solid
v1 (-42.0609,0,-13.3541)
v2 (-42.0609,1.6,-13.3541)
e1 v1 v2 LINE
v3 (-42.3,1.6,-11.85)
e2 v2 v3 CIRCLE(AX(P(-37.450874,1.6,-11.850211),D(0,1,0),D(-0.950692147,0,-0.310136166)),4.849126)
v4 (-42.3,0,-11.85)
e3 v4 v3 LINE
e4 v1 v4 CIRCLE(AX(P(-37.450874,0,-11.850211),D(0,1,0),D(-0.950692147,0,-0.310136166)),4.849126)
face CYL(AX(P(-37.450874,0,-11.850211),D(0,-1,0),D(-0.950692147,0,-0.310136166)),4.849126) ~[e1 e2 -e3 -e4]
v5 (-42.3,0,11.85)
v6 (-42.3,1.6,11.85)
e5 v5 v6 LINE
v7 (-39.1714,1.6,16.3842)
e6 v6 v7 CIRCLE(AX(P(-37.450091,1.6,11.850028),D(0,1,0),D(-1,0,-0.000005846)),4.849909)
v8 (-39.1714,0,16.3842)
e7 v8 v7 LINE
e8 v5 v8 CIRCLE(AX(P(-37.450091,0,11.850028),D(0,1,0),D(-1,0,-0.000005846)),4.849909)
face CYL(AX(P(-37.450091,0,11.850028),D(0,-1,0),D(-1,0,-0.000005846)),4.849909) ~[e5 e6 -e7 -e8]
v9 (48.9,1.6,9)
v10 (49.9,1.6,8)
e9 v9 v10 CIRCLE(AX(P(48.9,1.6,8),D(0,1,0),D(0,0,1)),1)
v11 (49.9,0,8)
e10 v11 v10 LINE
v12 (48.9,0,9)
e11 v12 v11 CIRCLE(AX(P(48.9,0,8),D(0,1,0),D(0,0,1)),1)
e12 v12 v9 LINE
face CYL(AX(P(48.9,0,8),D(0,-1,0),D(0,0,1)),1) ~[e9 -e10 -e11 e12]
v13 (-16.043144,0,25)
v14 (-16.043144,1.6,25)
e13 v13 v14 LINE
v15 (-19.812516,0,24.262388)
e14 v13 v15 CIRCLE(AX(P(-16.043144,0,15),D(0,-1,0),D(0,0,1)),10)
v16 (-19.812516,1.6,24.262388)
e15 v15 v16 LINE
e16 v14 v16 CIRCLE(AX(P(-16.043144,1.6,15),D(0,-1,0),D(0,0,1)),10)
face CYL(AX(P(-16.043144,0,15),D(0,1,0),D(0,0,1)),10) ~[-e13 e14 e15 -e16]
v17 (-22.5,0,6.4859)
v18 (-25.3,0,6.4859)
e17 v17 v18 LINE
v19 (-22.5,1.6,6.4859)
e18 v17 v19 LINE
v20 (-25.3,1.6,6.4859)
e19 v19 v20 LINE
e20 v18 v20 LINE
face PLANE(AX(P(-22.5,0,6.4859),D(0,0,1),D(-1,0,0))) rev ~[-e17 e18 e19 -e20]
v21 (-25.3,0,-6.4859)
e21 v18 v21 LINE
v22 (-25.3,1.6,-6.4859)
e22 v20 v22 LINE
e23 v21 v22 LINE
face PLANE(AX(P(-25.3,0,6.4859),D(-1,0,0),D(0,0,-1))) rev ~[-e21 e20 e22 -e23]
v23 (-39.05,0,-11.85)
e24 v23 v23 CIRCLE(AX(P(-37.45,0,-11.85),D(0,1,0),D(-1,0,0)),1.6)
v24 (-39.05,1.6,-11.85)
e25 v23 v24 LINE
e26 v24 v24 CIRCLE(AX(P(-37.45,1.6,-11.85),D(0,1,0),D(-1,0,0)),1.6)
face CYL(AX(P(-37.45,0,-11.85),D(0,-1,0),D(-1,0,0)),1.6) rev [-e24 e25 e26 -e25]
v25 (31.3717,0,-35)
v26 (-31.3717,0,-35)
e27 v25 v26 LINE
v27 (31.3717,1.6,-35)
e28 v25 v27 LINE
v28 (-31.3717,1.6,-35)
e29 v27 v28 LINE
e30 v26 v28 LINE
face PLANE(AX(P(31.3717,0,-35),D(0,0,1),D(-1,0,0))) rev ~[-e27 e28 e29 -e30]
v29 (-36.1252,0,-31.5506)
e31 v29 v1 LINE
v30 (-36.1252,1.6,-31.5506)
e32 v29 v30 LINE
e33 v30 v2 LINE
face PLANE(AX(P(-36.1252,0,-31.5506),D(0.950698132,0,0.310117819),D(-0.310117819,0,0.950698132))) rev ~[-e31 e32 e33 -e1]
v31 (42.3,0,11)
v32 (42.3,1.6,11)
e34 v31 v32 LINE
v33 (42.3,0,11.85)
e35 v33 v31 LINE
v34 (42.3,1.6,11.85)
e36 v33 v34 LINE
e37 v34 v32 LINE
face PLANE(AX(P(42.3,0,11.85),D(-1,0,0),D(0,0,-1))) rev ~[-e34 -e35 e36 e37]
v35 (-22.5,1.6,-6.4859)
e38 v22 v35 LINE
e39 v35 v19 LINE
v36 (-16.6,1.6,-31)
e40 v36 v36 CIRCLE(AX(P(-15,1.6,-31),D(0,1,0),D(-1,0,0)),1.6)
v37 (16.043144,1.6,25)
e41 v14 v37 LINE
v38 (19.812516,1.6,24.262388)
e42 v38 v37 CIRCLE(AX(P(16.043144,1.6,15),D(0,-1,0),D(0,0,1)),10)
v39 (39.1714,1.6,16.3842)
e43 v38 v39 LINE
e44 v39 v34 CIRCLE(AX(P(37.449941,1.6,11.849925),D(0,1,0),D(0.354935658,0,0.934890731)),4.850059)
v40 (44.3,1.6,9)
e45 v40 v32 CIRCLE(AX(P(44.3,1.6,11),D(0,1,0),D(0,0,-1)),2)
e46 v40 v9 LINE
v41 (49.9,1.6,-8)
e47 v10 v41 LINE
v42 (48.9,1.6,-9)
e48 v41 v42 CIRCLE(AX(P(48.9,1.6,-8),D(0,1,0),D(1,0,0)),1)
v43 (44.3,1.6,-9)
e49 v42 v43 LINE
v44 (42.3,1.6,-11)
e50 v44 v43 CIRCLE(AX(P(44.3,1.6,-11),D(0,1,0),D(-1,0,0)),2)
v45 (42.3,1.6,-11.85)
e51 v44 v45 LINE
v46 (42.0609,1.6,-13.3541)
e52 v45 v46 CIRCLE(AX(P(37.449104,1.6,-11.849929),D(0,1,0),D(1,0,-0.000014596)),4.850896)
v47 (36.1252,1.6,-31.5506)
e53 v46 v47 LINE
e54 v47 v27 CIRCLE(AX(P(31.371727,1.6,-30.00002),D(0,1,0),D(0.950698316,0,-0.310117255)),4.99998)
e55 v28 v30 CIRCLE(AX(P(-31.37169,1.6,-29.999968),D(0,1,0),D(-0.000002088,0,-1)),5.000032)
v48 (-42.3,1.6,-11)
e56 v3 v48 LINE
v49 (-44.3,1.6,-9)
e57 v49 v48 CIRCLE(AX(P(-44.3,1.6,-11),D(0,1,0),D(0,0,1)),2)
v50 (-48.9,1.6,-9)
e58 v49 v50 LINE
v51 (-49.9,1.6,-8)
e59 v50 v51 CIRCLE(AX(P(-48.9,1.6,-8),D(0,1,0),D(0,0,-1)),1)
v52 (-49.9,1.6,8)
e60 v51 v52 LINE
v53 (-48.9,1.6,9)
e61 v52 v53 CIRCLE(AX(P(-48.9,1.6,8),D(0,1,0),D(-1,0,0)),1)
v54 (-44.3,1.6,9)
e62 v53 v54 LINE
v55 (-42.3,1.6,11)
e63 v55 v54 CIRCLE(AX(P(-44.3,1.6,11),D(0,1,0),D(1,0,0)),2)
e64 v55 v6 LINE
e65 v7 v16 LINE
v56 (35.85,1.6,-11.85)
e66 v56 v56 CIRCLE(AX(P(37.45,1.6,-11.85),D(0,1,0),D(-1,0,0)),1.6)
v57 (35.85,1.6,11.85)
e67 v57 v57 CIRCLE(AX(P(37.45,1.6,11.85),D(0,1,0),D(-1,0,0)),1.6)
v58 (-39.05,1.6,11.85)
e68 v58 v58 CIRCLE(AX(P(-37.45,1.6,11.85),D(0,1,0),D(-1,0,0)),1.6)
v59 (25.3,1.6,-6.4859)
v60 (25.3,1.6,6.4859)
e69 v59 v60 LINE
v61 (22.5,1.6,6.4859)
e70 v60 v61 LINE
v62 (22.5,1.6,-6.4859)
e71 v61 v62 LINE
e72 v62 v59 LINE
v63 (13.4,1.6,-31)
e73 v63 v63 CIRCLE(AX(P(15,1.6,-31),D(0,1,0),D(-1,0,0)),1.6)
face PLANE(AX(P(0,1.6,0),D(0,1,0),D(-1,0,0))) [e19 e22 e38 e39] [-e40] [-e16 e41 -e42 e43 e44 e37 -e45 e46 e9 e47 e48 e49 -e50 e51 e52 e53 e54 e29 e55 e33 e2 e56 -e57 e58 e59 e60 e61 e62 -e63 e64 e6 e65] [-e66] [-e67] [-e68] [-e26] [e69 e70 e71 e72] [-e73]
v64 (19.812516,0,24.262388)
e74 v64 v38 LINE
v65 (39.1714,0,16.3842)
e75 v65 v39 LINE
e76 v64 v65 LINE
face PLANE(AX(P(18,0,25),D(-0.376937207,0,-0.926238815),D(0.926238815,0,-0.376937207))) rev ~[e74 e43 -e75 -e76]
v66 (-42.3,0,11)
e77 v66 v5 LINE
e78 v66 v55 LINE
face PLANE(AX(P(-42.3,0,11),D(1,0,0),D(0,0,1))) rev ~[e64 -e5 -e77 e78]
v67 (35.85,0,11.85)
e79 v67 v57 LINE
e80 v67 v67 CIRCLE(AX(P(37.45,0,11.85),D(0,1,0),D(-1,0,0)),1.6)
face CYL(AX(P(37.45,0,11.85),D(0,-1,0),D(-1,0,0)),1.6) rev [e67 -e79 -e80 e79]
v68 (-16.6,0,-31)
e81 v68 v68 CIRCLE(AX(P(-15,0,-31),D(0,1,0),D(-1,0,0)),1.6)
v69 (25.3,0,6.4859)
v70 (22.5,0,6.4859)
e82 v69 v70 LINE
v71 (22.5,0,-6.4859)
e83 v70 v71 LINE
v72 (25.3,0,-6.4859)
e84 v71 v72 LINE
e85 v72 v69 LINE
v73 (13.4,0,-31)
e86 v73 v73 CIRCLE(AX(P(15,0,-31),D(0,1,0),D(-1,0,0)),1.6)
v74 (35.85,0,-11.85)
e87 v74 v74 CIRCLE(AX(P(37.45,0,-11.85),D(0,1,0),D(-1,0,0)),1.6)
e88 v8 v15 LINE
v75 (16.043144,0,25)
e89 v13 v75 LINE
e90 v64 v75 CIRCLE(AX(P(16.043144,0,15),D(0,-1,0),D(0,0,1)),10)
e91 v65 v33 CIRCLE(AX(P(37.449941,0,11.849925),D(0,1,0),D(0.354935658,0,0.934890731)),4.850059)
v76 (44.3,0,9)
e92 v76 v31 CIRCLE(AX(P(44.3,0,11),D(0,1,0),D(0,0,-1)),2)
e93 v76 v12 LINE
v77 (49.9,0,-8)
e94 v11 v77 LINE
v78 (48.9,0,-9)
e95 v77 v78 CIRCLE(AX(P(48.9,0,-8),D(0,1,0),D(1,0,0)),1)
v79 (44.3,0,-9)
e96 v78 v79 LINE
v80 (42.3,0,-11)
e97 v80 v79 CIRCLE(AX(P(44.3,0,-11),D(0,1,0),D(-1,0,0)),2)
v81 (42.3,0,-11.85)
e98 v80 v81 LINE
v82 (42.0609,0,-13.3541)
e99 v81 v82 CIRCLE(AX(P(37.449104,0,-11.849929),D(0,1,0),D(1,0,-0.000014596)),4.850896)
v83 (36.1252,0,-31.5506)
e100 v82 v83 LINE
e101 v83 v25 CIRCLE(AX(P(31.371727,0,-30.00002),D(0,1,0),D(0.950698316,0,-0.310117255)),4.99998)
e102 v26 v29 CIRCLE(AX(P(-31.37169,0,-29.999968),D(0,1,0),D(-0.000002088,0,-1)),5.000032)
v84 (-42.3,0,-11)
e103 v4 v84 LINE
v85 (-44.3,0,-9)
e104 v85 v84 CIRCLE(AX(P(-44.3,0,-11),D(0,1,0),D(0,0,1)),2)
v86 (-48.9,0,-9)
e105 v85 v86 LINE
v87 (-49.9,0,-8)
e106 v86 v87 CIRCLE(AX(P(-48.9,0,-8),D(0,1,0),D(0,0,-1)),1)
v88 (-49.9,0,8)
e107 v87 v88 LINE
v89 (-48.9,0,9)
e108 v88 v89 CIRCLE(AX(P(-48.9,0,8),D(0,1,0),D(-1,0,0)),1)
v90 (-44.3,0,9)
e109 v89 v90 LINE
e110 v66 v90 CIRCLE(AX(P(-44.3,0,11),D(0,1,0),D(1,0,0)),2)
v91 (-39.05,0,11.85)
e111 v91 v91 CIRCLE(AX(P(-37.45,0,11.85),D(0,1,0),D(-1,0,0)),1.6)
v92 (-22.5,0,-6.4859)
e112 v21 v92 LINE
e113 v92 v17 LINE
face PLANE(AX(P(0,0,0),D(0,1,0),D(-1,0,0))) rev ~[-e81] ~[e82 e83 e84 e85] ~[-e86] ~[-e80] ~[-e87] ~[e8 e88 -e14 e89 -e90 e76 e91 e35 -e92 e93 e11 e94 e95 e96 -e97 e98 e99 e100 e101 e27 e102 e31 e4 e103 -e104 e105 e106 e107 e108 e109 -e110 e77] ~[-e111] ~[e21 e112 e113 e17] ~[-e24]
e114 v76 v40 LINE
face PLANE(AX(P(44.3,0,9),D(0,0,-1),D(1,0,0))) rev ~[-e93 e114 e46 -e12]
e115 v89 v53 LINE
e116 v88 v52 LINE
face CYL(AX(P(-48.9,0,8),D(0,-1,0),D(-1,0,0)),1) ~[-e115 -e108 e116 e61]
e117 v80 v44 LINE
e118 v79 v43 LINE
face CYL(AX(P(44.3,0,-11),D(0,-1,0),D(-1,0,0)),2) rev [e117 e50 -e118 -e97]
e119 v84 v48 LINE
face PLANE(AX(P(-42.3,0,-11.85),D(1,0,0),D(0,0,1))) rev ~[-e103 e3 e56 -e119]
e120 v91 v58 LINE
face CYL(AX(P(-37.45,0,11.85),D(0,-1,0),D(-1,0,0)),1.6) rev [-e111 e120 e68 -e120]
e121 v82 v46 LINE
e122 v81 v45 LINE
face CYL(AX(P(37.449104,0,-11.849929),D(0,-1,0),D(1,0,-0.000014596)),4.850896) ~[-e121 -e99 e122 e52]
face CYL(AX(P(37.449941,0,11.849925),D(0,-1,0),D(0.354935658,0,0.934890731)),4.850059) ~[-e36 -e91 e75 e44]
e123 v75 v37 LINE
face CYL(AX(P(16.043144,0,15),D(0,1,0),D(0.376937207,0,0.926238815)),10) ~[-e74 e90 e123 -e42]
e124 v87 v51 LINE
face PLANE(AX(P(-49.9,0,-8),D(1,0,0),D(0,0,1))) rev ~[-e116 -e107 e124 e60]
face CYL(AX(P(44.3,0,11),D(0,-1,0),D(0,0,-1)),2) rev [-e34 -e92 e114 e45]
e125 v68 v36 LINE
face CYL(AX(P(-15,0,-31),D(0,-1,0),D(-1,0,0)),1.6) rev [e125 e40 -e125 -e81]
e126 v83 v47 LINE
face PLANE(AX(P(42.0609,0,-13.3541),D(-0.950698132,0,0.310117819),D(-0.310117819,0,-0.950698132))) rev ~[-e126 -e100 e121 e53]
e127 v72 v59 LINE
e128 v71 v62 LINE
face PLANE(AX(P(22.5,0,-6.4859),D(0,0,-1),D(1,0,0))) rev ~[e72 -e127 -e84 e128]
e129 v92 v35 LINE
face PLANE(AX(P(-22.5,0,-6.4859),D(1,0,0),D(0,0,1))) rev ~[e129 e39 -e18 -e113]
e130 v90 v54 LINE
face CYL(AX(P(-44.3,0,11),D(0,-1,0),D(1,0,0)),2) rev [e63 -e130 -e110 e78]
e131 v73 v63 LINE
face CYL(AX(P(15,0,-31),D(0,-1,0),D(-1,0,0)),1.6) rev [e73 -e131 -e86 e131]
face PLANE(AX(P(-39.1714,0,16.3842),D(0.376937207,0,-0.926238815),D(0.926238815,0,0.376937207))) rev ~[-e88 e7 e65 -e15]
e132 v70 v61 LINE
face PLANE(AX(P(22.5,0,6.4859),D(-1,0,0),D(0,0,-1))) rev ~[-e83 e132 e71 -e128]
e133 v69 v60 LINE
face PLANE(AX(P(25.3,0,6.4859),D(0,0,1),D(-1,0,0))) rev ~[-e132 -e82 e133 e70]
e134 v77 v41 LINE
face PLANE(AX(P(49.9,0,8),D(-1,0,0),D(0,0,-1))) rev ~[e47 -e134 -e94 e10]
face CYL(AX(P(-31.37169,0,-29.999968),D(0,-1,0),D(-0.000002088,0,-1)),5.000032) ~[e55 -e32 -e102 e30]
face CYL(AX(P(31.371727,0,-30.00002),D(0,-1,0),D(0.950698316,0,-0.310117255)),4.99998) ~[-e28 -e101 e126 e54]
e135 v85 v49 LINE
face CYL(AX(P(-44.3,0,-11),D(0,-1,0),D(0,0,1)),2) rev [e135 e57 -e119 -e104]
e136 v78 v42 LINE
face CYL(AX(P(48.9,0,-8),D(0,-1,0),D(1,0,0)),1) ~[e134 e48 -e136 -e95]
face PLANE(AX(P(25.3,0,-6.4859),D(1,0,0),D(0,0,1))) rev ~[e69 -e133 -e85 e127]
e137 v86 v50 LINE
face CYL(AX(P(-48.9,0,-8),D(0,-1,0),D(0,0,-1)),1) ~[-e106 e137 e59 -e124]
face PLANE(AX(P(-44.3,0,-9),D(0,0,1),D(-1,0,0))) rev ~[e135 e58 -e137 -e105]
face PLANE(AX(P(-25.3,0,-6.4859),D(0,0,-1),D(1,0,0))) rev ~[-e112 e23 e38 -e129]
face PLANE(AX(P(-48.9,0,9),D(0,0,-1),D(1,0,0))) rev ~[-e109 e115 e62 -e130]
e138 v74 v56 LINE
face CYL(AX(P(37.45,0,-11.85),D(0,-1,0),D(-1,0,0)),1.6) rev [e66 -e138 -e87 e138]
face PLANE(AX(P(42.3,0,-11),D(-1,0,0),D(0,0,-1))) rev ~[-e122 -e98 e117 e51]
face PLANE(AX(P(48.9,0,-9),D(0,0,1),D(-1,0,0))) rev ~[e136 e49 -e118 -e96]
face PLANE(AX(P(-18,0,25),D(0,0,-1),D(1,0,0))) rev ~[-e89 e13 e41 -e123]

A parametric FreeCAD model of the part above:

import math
import FreeCAD as App
import Part
import Sketcher
Q = App.Units.Quantity


def edges_at(feature, points):
    """Names of the edges that pass closest to the given points."""
    edges = feature.Shape.Edges
    near = lambda p: min(range(len(edges)), key=lambda i: edges[i].distToShape(Part.Vertex(*p))[0])
    return sorted({f"Edge{near(p) + 1}" for p in points})


def add_polygon(sketch, points):
    """Adds a closed chain of lines whose ends are joined by coincident constraints."""
    first, n = sketch.GeometryCount, len(points)
    for a, b in zip(points, points[1:] + points[:1]):
        sketch.addGeometry(Part.LineSegment(App.Vector(*a, 0), App.Vector(*b, 0)), False)
    for i in range(n):
        sketch.addConstraint(Sketcher.Constraint("Coincident", first + i, 2, first + (i + 1) % n, 1))

doc = App.newDocument("Part")
body = doc.addObject("PartDesign::Body", "Body")

sketch1 = doc.addObject("Sketcher::SketchObject", "Sketch")
body.addObject(sketch1)
sketch1.AttachmentSupport = (doc.XZ_Plane, [""])
sketch1.MapMode = "FlatFace"
sketch1.addGeometry(Part.LineSegment(App.Vector(-49.9, -8, 0), App.Vector(-49.9, 8, 0)), False)
sketch1.addGeometry(Part.ArcOfCircle(Part.Circle(App.Vector(-48.9, 8, 0), App.Vector(0, 0, 1), 1), math.radians(90), math.radians(180)), False)
sketch1.addGeometry(Part.LineSegment(App.Vector(-48.9, 9, 0), App.Vector(-44.3, 9, 0)), False)
sketch1.addGeometry(Part.ArcOfCircle(Part.Circle(App.Vector(-44.3, 11, 0), App.Vector(0, 0, 1), 2), math.radians(-90), math.radians(0)), False)
sketch1.addGeometry(Part.LineSegment(App.Vector(-42.3, 11, 0), App.Vector(-42.3, 11.8, 0)), False)
sketch1.addGeometry(Part.ArcOfCircle(Part.Circle(App.Vector(-37.5, 11.8, 0), App.Vector(0, 0, 1), 4.8), math.radians(111), math.radians(180)), False)
sketch1.addGeometry(Part.LineSegment(App.Vector(-39.2, 16.4, 0), App.Vector(-18, 25, 0)), False)
sketch1.addGeometry(Part.LineSegment(App.Vector(-18, 25, 0), App.Vector(18, 25, 0)), False)
sketch1.addGeometry(Part.LineSegment(App.Vector(18, 25, 0), App.Vector(39.2, 16.4, 0)), False)
sketch1.addGeometry(Part.ArcOfCircle(Part.Circle(App.Vector(37.5, 11.8, 0), App.Vector(0, 0, 1), 4.8), math.radians(0), math.radians(69)), False)
sketch1.addGeometry(Part.LineSegment(App.Vector(42.3, 11.8, 0), App.Vector(42.3, 11, 0)), False)
sketch1.addGeometry(Part.ArcOfCircle(Part.Circle(App.Vector(44.3, 11, 0), App.Vector(0, 0, 1), 2), math.radians(180), math.radians(270)), False)
sketch1.addGeometry(Part.LineSegment(App.Vector(44.3, 9, 0), App.Vector(48.9, 9, 0)), False)
sketch1.addGeometry(Part.ArcOfCircle(Part.Circle(App.Vector(48.9, 8, 0), App.Vector(0, 0, 1), 1), math.radians(0), math.radians(90)), False)
sketch1.addGeometry(Part.LineSegment(App.Vector(49.9, 8, 0), App.Vector(49.9, -8, 0)), False)
sketch1.addGeometry(Part.ArcOfCircle(Part.Circle(App.Vector(48.9, -8, 0), App.Vector(0, 0, 1), 1), math.radians(-90), math.radians(0)), False)
sketch1.addGeometry(Part.LineSegment(App.Vector(48.9, -9, 0), App.Vector(44.3, -9, 0)), False)
sketch1.addGeometry(Part.ArcOfCircle(Part.Circle(App.Vector(44.3, -11, 0), App.Vector(0, 0, 1), 2), math.radians(90), math.radians(180)), False)
sketch1.addGeometry(Part.LineSegment(App.Vector(42.3, -11, 0), App.Vector(42.3, -11.8, 0)), False)
sketch1.addGeometry(Part.ArcOfCircle(Part.Circle(App.Vector(37.5, -11.8, 0), App.Vector(0, 0, 1), 4.8), math.radians(-18.07), math.radians(0)), False)
sketch1.addGeometry(Part.LineSegment(App.Vector(42.1, -13.4, 0), App.Vector(36.1, -31.6, 0)), False)
sketch1.addGeometry(Part.ArcOfCircle(Part.Circle(App.Vector(31.4, -30, 0), App.Vector(0, 0, 1), 5), math.radians(-90), math.radians(-18)), False)
sketch1.addGeometry(Part.LineSegment(App.Vector(31.4, -35, 0), App.Vector(-31.4, -35, 0)), False)
sketch1.addGeometry(Part.ArcOfCircle(Part.Circle(App.Vector(-31.4, -30, 0), App.Vector(0, 0, 1), 5), math.radians(-162), math.radians(-90)), False)
sketch1.addGeometry(Part.LineSegment(App.Vector(-36.1, -31.6, 0), App.Vector(-42.1, -13.4, 0)), False)
sketch1.addGeometry(Part.ArcOfCircle(Part.Circle(App.Vector(-37.5, -11.8, 0), App.Vector(0, 0, 1), 4.9), math.radians(180), math.radians(198.07)), False)
sketch1.addGeometry(Part.LineSegment(App.Vector(-42.3, -11.8, 0), App.Vector(-42.3, -11, 0)), False)
sketch1.addGeometry(Part.ArcOfCircle(Part.Circle(App.Vector(-44.3, -11, 0), App.Vector(0, 0, 1), 2), math.radians(0), math.radians(90)), False)
sketch1.addGeometry(Part.LineSegment(App.Vector(-44.3, -9, 0), App.Vector(-48.9, -9, 0)), False)
sketch1.addGeometry(Part.ArcOfCircle(Part.Circle(App.Vector(-48.9, -8, 0), App.Vector(0, 0, 1), 1), math.radians(180), math.radians(270)), False)
sketch1.addGeometry(Part.Circle(App.Vector(15, -31, 0), App.Vector(0, 0, 1), 1.6), False)
sketch1.addGeometry(Part.Circle(App.Vector(37.5, -11.8, 0), App.Vector(0, 0, 1), 1.6), False)
sketch1.addGeometry(Part.Circle(App.Vector(-15, -31, 0), App.Vector(0, 0, 1), 1.6), False)
sketch1.addGeometry(Part.Circle(App.Vector(-37.5, -11.8, 0), App.Vector(0, 0, 1), 1.6), False)
add_polygon(sketch1, [(22.5, -6.5), (25.3, -6.5), (25.3, 6.5), (22.5, 6.5)])
sketch1.addGeometry(Part.Circle(App.Vector(37.5, 11.8, 0), App.Vector(0, 0, 1), 1.6), False)
add_polygon(sketch1, [(-25.3, 6.5), (-25.3, -6.5), (-22.5, -6.5), (-22.5, 6.5)])
sketch1.addGeometry(Part.Circle(App.Vector(-37.5, 11.8, 0), App.Vector(0, 0, 1), 1.6), False)
sketch1.addConstraint([
    Sketcher.Constraint("Tangent", 0, 2, 1, 2),
    Sketcher.Constraint("Tangent", 1, 1, 2, 1),
    Sketcher.Constraint("Tangent", 2, 2, 3, 1),
    Sketcher.Constraint("Tangent", 3, 2, 4, 1),
    Sketcher.Constraint("Tangent", 4, 2, 5, 2),
    Sketcher.Constraint("Coincident", 5, 1, 6, 1),
    Sketcher.Constraint("Coincident", 6, 2, 7, 1),
    Sketcher.Constraint("Coincident", 7, 2, 8, 1),
    Sketcher.Constraint("Coincident", 8, 2, 9, 2),
    Sketcher.Constraint("Tangent", 9, 1, 10, 1),
    Sketcher.Constraint("Tangent", 10, 2, 11, 1),
    Sketcher.Constraint("Tangent", 11, 2, 12, 1),
    Sketcher.Constraint("Tangent", 12, 2, 13, 2),
    Sketcher.Constraint("Tangent", 13, 1, 14, 1),
    Sketcher.Constraint("Tangent", 14, 2, 15, 2),
    Sketcher.Constraint("Tangent", 15, 1, 16, 1),
    Sketcher.Constraint("Tangent", 16, 2, 17, 1),
    Sketcher.Constraint("Tangent", 17, 2, 18, 1),
    Sketcher.Constraint("Tangent", 18, 2, 19, 2),
    Sketcher.Constraint("Tangent", 19, 1, 20, 1),
    Sketcher.Constraint("Tangent", 20, 2, 21, 2),
    Sketcher.Constraint("Tangent", 21, 1, 22, 1),
    Sketcher.Constraint("Tangent", 22, 2, 23, 2),
    Sketcher.Constraint("Tangent", 23, 1, 24, 1),
    Sketcher.Constraint("Tangent", 24, 2, 25, 2),
    Sketcher.Constraint("Tangent", 25, 1, 26, 1),
    Sketcher.Constraint("Tangent", 26, 2, 27, 1),
    Sketcher.Constraint("Tangent", 27, 2, 28, 1),
    Sketcher.Constraint("Tangent", 28, 2, 29, 2),
    Sketcher.Constraint("Tangent", 29, 1, 0, 1),
    Sketcher.Constraint("Vertical", 0),
    Sketcher.Constraint("Horizontal", 2),
    Sketcher.Constraint("Vertical", 4),
    Sketcher.Constraint("Horizontal", 7),
    Sketcher.Constraint("Vertical", 10),
    Sketcher.Constraint("Horizontal", 12),
    Sketcher.Constraint("Vertical", 14),
    Sketcher.Constraint("Horizontal", 16),
    Sketcher.Constraint("Vertical", 18),
    Sketcher.Constraint("Horizontal", 22),
    Sketcher.Constraint("Vertical", 26),
    Sketcher.Constraint("Horizontal", 28),
    Sketcher.Constraint("Horizontal", 34),
    Sketcher.Constraint("Vertical", 35),
    Sketcher.Constraint("Horizontal", 36),
    Sketcher.Constraint("Vertical", 37),
    Sketcher.Constraint("Vertical", 39),
    Sketcher.Constraint("Horizontal", 40),
    Sketcher.Constraint("Vertical", 41),
    Sketcher.Constraint("Horizontal", 42),
    Sketcher.Constraint("Coincident", 31, 3, 19, 3),
    Sketcher.Constraint("Coincident", 33, 3, 25, 3),
    Sketcher.Constraint("Coincident", 38, 3, 9, 3),
    Sketcher.Constraint("Coincident", 43, 3, 5, 3),
    Sketcher.Constraint("Equal", 5, 9),
    Sketcher.Constraint("Equal", 3, 11),
    Sketcher.Constraint("Equal", 1, 13),
    Sketcher.Constraint("Equal", 13, 15),
    Sketcher.Constraint("Equal", 11, 17),
    Sketcher.Constraint("Equal", 9, 19),
    Sketcher.Constraint("Equal", 21, 23),
    Sketcher.Constraint("Equal", 19, 25),
    Sketcher.Constraint("Equal", 17, 27),
    Sketcher.Constraint("Equal", 15, 29),
    Sketcher.Constraint("Equal", 30, 31),
    Sketcher.Constraint("Equal", 31, 32),
    Sketcher.Constraint("Equal", 32, 33),
    Sketcher.Constraint("Equal", 33, 38),
    Sketcher.Constraint("Equal", 38, 43),
    Sketcher.Constraint("Symmetric", 1, 3, 15, 3, -1, 1),
    Sketcher.Constraint("Symmetric", 5, 3, 19, 3, -1, 1),
    Sketcher.Constraint("Symmetric", 9, 3, 25, 3, -1, 1),
    Sketcher.Constraint("Symmetric", 35, 2, 39, 2, -1, 1),
    Sketcher.Constraint("Symmetric", 37, 2, 41, 2, -1, 1),
    Sketcher.Constraint("Symmetric", 5, 3, 9, 3, -2),
    Sketcher.Constraint("Symmetric", 30, 3, 32, 3, -2),
    Sketcher.Constraint("Horizontal", 3, 3, 11, 3),
    Sketcher.Constraint("Horizontal", 17, 3, 27, 3),
    Sketcher.Constraint("Horizontal", 5, 1, 8, 2),
    Sketcher.Constraint("Horizontal", 20, 2, 23, 1),
    Sketcher.Constraint("Horizontal", 37, 2, 39, 2),
    Sketcher.Constraint("Equal", 6, 8),
    Sketcher.Constraint("DistanceX", 7, 1, 7, 2, Q("36 mm")),
    Sketcher.Constraint("Radius", 1, Q("1 mm")),
    Sketcher.Constraint("Radius", 3, Q("2 mm")),
    Sketcher.Constraint("Radius", 21, Q("5 mm")),
    Sketcher.Constraint("Diameter", 30, Q("3.2 mm")),
    Sketcher.Constraint("DistanceY", 0, 1, 0, 2, Q("16 mm")),
    Sketcher.Constraint("Radius", 5, Q("4.85 mm")),
    Sketcher.Constraint("DistanceX", 2, 1, 2, 2, Q("4.6 mm")),
    Sketcher.Constraint("DistanceX", 34, 1, 34, 2, Q("2.8 mm")),
    Sketcher.Constraint("DistanceY", 21, 3, -1, 1, Q("30 mm")),
    Sketcher.Constraint("DistanceX", -1, 1, 30, 3, Q("15 mm")),
    Sketcher.Constraint("DistanceY", 30, 3, -1, 1, Q("31 mm")),
    Sketcher.Constraint("DistanceY", -1, 1, 6, 2, Q("25 mm")),
    Sketcher.Constraint("DistanceX", 34, 2, 17, 2, Q("17 mm")),
    Sketcher.Constraint("DistanceY", 4, 1, 4, 2, Q("0.85 mm")),
    Sketcher.Constraint("DistanceX", 1, 3, -1, 1, Q("48.9 mm")),
    Sketcher.Constraint("DistanceX", 22, 2, 22, 1, Q("62.7434 mm")),
    Sketcher.Constraint("DistanceY", 35, 1, 35, 2, Q("12.9718 mm")),
    Sketcher.Constraint("Distance", 6, Q("22.8574 mm")),
])
pad1 = doc.addObject("PartDesign::Pad", "Pad")
body.addObject(pad1)
pad1.Profile = sketch1
pad1.Length = 1.6
pad1.Reversed = True
doc.recompute()

fillet = doc.addObject("PartDesign::Fillet", "Fillet")
body.addObject(fillet)
fillet.Base = (pad1, edges_at(pad1, [(-18, 0.8, 25), (18, 0.8, 25)]))
fillet.Radius = 10

doc.recompute()
